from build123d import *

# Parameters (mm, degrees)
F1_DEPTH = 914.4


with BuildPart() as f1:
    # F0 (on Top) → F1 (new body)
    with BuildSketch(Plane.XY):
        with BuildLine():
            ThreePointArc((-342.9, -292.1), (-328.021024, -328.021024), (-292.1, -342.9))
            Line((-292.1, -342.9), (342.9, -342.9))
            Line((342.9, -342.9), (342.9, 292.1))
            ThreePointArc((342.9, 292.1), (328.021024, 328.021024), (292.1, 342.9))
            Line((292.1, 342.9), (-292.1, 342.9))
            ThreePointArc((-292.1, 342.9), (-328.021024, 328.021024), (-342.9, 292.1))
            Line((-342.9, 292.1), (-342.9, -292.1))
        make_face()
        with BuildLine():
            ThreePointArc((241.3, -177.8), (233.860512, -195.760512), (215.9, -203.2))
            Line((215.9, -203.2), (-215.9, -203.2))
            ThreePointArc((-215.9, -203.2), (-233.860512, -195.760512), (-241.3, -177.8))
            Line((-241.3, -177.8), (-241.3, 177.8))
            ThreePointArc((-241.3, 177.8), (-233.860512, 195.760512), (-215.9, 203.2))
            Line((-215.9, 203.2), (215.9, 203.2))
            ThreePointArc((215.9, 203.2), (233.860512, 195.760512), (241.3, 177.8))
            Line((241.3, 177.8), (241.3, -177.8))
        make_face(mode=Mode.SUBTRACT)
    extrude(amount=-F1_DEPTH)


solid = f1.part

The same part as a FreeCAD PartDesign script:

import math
import FreeCAD as App
import Part
import Sketcher
Q = App.Units.Quantity

doc = App.newDocument("Part")
body = doc.addObject("PartDesign::Body", "Body")

sketch1 = body.newObject("Sketcher::SketchObject", "Sketch")
sketch1.AttachmentSupport = (doc.getObject("XY_Plane"), [""])
sketch1.MapMode = "FlatFace"
sketch1.addGeometry(Part.ArcOfCircle(Part.Circle(App.Vector(-292, -292, 0), App.Vector(0, 0, 1), 51), math.radians(-180), math.radians(-90)), False)
sketch1.addGeometry(Part.LineSegment(App.Vector(-292, -343, 0), App.Vector(343, -343, 0)), False)
sketch1.addGeometry(Part.LineSegment(App.Vector(343, -343, 0), App.Vector(343, 292, 0)), False)
sketch1.addGeometry(Part.ArcOfCircle(Part.Circle(App.Vector(292, 292, 0), App.Vector(0, 0, 1), 51), math.radians(0), math.radians(90)), False)
sketch1.addGeometry(Part.LineSegment(App.Vector(292, 343, 0), App.Vector(-292, 343, 0)), False)
sketch1.addGeometry(Part.ArcOfCircle(Part.Circle(App.Vector(-292, 292, 0), App.Vector(0, 0, 1), 51), math.radians(90), math.radians(180)), False)
sketch1.addGeometry(Part.LineSegment(App.Vector(-343, 292, 0), App.Vector(-343, -292, 0)), False)
sketch1.addGeometry(Part.LineSegment(App.Vector(241, 178, 0), App.Vector(241, -178, 0)), False)
sketch1.addGeometry(Part.ArcOfCircle(Part.Circle(App.Vector(216, -178, 0), App.Vector(0, 0, 1), 25), math.radians(-90), math.radians(0)), False)
sketch1.addGeometry(Part.LineSegment(App.Vector(216, -203, 0), App.Vector(-216, -203, 0)), False)
sketch1.addGeometry(Part.ArcOfCircle(Part.Circle(App.Vector(-216, -178, 0), App.Vector(0, 0, 1), 25), math.radians(-180), math.radians(-90)), False)
sketch1.addGeometry(Part.LineSegment(App.Vector(-241, -178, 0), App.Vector(-241, 178, 0)), False)
sketch1.addGeometry(Part.ArcOfCircle(Part.Circle(App.Vector(-216, 178, 0), App.Vector(0, 0, 1), 25), math.radians(90), math.radians(180)), False)
sketch1.addGeometry(Part.LineSegment(App.Vector(-216, 203, 0), App.Vector(216, 203, 0)), False)
sketch1.addGeometry(Part.ArcOfCircle(Part.Circle(App.Vector(216, 178, 0), App.Vector(0, 0, 1), 25), math.radians(0), math.radians(90)), False)
sketch1.addConstraint(Sketcher.Constraint("Tangent", 0, 2, 1, 1))
sketch1.addConstraint(Sketcher.Constraint("Coincident", 1, 2, 2, 1))
sketch1.addConstraint(Sketcher.Constraint("Tangent", 2, 2, 3, 1))
sketch1.addConstraint(Sketcher.Constraint("Tangent", 3, 2, 4, 1))
sketch1.addConstraint(Sketcher.Constraint("Tangent", 4, 2, 5, 1))
sketch1.addConstraint(Sketcher.Constraint("Tangent", 5, 2, 6, 1))
sketch1.addConstraint(Sketcher.Constraint("Tangent", 6, 2, 0, 1))
sketch1.addConstraint(Sketcher.Constraint("Tangent", 7, 2, 8, 2))
sketch1.addConstraint(Sketcher.Constraint("Tangent", 8, 1, 9, 1))
sketch1.addConstraint(Sketcher.Constraint("Tangent", 9, 2, 10, 2))
sketch1.addConstraint(Sketcher.Constraint("Tangent", 10, 1, 11, 1))
sketch1.addConstraint(Sketcher.Constraint("Tangent", 11, 2, 12, 2))
sketch1.addConstraint(Sketcher.Constraint("Tangent", 12, 1, 13, 1))
sketch1.addConstraint(Sketcher.Constraint("Tangent", 13, 2, 14, 2))
sketch1.addConstraint(Sketcher.Constraint("Tangent", 14, 1, 7, 1))
sketch1.addConstraint(Sketcher.Constraint("Horizontal", 1))
sketch1.addConstraint(Sketcher.Constraint("Vertical", 2))
sketch1.addConstraint(Sketcher.Constraint("Horizontal", 4))
sketch1.addConstraint(Sketcher.Constraint("Vertical", 6))
sketch1.addConstraint(Sketcher.Constraint("Vertical", 7))
sketch1.addConstraint(Sketcher.Constraint("Horizontal", 9))
sketch1.addConstraint(Sketcher.Constraint("Vertical", 11))
sketch1.addConstraint(Sketcher.Constraint("Horizontal", 13))
sketch1.addConstraint(Sketcher.Constraint("Equal", 0, 3))
sketch1.addConstraint(Sketcher.Constraint("Equal", 3, 5))
sketch1.addConstraint(Sketcher.Constraint("Equal", 8, 10))
sketch1.addConstraint(Sketcher.Constraint("Equal", 10, 12))
sketch1.addConstraint(Sketcher.Constraint("Equal", 12, 14))
sketch1.addConstraint(Sketcher.Constraint("Symmetric", 0, 3, 3, 3, -1, 1))
sketch1.addConstraint(Sketcher.Constraint("Symmetric", 8, 3, 12, 3, -1, 1))
sketch1.addConstraint(Sketcher.Constraint("Equal", 1, 2))
sketch1.addConstraint(Sketcher.Constraint("Radius", 0, Q("2.0000001 in")))
sketch1.addConstraint(Sketcher.Constraint("Radius", 8, Q("1 in")))
sketch1.addConstraint(Sketcher.Constraint("DistanceX", 1, 1, 1, 2, Q("25 in")))
sketch1.addConstraint(Sketcher.Constraint("DistanceX", 9, 2, 9, 1, Q("17 in")))
sketch1.addConstraint(Sketcher.Constraint("DistanceY", 7, 2, 7, 1, Q("14 in")))
pad1 = body.newObject("PartDesign::Pad", "Pad")
pad1.Profile = sketch1
pad1.Length = Q("36 in")
pad1.Reversed = True

doc.recompute()
